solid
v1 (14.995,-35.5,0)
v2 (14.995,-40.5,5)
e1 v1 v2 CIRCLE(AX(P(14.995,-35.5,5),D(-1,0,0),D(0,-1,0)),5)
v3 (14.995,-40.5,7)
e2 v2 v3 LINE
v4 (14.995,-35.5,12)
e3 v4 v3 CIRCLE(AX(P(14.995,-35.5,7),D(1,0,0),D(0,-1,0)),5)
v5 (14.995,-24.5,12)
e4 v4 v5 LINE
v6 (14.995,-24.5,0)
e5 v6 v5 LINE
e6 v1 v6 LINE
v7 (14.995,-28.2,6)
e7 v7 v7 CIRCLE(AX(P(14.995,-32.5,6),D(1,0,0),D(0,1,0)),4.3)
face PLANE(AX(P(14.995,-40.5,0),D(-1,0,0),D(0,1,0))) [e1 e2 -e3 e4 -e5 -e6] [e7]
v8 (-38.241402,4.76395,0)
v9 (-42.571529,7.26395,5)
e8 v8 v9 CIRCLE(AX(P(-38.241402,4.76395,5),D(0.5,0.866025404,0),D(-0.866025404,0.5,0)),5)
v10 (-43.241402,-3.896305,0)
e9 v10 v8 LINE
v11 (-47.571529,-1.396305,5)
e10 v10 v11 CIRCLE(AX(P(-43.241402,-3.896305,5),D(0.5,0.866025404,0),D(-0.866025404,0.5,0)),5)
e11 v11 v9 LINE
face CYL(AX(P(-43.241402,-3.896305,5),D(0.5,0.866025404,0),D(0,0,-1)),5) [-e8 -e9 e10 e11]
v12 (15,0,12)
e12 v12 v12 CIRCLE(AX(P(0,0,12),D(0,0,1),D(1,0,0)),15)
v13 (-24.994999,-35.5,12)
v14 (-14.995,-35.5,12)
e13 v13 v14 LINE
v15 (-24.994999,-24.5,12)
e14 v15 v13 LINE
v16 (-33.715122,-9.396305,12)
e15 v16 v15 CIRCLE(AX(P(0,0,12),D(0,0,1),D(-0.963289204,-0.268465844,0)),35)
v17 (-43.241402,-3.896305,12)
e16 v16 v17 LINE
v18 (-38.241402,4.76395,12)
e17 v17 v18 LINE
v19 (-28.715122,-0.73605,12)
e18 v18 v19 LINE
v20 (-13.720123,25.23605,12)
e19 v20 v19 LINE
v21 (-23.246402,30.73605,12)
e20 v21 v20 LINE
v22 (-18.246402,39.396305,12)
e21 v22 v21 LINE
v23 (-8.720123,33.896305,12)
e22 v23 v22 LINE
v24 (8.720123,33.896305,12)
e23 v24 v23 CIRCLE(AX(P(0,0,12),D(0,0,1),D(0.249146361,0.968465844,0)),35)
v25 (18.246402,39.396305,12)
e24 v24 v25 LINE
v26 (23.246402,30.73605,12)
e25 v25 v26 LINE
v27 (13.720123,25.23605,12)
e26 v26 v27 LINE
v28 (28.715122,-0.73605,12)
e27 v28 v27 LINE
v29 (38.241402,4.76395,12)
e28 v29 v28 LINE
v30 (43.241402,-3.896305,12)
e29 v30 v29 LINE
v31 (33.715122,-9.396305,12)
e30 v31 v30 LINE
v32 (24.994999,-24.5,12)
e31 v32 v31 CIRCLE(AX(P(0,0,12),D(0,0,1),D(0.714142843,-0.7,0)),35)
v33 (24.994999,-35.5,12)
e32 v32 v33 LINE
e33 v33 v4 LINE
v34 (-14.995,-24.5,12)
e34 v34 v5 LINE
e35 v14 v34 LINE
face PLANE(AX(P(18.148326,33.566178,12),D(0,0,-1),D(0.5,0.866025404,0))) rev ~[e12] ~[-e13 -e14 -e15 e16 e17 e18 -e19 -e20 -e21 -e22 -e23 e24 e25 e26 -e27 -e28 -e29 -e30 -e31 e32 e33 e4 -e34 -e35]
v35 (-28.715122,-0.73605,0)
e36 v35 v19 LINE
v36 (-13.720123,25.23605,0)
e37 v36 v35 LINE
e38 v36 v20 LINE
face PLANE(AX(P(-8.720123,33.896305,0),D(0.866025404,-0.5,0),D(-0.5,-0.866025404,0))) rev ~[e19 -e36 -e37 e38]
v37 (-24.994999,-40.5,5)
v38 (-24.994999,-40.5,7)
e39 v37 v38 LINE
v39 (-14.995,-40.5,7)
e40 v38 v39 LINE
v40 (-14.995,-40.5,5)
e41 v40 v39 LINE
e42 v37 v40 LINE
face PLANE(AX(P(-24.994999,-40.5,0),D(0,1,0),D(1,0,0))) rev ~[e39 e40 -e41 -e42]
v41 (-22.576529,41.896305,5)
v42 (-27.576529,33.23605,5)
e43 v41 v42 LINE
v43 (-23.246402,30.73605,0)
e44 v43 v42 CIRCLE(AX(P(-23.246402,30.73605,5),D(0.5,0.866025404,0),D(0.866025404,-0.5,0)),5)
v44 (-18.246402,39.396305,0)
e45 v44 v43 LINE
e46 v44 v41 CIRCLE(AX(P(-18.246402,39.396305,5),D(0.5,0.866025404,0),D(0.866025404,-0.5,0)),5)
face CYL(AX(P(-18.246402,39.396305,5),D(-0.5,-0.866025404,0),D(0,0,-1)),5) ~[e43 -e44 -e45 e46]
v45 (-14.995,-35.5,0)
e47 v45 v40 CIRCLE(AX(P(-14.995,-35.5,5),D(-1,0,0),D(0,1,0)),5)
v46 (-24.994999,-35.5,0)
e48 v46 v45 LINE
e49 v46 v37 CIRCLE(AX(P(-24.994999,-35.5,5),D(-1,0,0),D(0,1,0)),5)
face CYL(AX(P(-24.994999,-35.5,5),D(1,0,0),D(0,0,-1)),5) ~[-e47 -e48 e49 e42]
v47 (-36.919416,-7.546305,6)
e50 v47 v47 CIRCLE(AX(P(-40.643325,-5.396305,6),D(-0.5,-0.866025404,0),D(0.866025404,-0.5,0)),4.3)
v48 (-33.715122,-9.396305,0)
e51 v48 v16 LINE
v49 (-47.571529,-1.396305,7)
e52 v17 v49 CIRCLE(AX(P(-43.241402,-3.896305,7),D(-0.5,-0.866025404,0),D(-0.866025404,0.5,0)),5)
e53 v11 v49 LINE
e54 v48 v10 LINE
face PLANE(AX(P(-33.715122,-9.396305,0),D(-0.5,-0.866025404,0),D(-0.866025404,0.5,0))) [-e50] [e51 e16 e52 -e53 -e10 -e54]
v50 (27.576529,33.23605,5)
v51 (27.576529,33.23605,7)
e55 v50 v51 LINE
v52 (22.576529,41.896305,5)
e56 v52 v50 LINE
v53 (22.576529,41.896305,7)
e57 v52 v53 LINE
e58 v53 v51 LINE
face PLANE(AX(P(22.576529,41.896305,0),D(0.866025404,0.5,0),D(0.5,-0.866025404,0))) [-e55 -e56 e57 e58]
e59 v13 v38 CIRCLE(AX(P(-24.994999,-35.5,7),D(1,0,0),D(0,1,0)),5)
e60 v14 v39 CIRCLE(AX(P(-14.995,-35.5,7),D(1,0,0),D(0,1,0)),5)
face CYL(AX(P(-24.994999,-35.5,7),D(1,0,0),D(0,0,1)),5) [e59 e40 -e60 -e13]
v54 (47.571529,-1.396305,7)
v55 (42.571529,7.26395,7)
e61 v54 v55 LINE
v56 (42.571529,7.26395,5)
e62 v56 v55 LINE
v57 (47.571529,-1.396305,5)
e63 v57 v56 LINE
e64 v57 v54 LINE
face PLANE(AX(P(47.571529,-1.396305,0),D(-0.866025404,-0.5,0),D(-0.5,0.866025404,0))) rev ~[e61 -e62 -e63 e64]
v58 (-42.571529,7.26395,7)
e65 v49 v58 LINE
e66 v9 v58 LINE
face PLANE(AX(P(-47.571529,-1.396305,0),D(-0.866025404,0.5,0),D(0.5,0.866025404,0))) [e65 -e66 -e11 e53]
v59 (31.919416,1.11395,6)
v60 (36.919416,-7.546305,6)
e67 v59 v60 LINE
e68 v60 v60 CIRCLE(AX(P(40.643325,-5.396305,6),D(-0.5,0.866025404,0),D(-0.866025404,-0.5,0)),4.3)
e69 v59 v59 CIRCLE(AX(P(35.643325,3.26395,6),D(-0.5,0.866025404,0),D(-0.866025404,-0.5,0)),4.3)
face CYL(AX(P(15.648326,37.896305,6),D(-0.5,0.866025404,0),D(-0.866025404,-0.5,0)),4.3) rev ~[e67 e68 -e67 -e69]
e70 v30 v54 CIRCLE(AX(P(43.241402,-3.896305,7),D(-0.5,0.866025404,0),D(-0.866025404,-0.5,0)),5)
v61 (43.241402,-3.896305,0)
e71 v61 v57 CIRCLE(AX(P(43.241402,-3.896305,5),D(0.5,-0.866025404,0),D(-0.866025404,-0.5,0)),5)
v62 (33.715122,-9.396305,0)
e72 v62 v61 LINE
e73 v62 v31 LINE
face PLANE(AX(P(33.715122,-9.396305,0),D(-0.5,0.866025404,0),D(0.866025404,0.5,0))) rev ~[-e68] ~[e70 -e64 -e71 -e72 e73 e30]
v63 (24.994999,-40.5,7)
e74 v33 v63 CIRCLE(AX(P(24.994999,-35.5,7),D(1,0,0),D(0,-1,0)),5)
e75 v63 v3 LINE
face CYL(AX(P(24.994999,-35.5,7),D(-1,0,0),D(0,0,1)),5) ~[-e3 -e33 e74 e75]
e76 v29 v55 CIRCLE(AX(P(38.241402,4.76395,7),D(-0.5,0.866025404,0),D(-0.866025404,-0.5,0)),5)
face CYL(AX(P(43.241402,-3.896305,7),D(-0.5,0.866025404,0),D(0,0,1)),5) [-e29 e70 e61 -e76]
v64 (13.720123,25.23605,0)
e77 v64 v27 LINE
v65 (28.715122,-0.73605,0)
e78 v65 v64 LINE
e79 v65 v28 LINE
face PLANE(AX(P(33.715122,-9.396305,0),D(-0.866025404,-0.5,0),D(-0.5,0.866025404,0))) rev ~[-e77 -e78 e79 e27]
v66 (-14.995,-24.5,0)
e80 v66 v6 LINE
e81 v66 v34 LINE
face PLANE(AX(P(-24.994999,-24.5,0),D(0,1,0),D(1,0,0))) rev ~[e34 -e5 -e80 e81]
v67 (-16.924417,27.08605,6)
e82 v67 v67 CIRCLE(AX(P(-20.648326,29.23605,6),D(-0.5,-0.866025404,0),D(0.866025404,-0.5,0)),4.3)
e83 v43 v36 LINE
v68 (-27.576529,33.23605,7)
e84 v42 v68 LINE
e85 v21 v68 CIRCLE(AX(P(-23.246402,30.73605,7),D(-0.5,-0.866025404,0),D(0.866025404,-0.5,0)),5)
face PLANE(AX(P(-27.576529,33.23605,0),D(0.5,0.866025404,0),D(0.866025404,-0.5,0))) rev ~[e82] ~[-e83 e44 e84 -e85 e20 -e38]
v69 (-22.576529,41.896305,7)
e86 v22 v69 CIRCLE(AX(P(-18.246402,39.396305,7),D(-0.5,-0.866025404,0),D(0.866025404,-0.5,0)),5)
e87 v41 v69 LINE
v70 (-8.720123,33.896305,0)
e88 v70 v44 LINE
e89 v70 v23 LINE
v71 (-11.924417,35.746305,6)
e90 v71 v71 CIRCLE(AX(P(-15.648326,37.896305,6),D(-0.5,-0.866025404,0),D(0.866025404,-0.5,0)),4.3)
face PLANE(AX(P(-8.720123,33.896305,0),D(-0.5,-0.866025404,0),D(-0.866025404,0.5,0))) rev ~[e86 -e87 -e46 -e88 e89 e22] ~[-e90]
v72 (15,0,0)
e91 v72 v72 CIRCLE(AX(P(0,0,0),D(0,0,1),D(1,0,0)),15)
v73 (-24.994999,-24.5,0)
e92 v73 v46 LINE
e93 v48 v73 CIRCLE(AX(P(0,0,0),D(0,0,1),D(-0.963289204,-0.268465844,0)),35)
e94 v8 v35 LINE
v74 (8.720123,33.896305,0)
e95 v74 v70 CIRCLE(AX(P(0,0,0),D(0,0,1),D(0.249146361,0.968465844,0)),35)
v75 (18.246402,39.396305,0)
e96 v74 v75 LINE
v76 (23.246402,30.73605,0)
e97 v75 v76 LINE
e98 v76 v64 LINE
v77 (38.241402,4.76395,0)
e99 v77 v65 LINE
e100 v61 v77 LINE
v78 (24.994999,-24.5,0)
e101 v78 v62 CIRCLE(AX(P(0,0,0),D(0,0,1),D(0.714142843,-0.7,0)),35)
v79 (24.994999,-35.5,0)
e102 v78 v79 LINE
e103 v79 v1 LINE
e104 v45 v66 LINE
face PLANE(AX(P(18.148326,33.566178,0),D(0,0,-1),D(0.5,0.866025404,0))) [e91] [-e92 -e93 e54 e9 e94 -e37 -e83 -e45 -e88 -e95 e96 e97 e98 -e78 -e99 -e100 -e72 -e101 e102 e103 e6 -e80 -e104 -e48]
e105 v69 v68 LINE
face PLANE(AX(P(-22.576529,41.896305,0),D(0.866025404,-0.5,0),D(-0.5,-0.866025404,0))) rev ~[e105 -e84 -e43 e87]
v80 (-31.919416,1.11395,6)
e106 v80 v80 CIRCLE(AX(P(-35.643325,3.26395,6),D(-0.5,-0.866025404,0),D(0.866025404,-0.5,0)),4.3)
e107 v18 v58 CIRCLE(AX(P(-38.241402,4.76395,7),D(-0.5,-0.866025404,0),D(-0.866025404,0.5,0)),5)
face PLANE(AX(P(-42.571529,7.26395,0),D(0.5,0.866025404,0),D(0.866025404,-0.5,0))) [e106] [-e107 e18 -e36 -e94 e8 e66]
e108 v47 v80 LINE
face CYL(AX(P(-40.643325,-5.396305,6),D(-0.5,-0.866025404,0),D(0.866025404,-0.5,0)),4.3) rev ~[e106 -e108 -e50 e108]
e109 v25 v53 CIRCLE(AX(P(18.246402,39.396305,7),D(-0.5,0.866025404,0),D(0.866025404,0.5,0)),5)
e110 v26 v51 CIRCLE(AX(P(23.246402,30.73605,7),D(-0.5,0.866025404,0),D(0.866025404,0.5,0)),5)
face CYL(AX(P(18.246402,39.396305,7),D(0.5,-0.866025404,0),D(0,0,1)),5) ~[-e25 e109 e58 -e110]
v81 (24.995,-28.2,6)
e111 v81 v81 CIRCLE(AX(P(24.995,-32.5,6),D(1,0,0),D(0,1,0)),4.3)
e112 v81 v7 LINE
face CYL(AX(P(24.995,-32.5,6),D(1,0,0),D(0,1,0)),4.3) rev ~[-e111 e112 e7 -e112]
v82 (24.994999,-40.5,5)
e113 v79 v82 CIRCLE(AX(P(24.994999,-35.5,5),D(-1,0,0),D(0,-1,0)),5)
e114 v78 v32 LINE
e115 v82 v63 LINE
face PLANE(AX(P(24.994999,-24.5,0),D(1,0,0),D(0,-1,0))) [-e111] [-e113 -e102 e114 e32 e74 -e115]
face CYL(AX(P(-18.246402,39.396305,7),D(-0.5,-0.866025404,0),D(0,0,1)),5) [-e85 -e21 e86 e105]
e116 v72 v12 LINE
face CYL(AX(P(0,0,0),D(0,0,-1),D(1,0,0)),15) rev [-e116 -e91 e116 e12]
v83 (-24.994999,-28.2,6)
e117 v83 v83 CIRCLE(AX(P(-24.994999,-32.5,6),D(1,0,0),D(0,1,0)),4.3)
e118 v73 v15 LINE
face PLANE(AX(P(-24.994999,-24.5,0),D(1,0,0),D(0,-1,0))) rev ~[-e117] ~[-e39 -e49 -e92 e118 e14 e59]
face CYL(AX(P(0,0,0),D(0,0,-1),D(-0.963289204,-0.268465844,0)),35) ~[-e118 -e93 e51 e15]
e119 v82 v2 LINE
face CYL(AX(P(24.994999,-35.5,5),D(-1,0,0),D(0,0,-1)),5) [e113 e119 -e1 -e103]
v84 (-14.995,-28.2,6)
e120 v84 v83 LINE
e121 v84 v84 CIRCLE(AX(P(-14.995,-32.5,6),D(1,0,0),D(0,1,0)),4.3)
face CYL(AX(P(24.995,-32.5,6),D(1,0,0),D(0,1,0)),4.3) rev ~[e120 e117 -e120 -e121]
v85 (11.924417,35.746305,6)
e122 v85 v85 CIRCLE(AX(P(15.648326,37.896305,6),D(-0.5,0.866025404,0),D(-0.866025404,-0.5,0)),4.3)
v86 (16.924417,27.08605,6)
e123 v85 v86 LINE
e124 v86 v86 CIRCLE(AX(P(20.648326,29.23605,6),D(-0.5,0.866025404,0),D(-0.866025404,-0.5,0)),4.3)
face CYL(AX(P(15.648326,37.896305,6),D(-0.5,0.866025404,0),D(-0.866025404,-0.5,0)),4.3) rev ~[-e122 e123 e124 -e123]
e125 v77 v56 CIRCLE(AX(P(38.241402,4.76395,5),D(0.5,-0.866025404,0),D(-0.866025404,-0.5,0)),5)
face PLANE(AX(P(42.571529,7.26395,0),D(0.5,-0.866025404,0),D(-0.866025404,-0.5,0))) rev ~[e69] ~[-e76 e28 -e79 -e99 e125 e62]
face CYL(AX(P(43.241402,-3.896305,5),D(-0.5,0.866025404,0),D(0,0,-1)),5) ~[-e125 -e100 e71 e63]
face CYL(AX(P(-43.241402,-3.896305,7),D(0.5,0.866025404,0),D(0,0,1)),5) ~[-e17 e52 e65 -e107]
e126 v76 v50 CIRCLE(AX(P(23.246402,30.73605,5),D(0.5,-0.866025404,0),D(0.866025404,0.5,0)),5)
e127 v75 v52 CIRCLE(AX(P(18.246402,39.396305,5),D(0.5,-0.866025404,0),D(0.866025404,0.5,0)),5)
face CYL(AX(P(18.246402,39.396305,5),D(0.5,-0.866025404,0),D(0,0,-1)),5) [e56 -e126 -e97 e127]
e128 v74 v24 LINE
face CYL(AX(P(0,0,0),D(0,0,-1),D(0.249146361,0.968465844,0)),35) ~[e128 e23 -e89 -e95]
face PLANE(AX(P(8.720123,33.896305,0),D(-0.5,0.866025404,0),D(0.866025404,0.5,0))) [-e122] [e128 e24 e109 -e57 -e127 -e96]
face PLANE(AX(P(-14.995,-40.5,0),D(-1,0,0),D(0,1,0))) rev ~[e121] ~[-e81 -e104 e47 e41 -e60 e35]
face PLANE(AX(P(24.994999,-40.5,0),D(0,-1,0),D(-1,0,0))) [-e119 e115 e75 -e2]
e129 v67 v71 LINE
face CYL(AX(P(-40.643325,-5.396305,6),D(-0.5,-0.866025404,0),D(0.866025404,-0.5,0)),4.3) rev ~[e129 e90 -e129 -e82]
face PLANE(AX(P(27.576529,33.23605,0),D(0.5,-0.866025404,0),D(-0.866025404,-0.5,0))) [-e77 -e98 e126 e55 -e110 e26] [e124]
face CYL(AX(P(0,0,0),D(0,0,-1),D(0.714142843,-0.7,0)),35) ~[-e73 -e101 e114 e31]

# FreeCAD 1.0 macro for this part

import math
import FreeCAD as App
import Part
import Sketcher

V = App.Vector
Q = App.Units.Quantity


def edges_at(feature, points):
    """Names of the edges that pass closest to the given points."""
    edges = feature.Shape.Edges
    near = lambda p: min(range(len(edges)), key=lambda i: edges[i].distToShape(Part.Vertex(*p))[0])
    return sorted({f"Edge{near(p) + 1}" for p in points})

doc = App.newDocument("Part")
params = doc.addObject("Spreadsheet::Sheet", "Params")
for row, (alias, value) in enumerate([
    ("sketch1_diameter", "30 mm"),
    ("sketch1_radius", "35 mm"),
    ("sketch1_width", "49.989999 mm"),
    ("sketch1_length", "49.989999 mm"),
    ("pad1_length", "12 mm"),
    ("sketch2_length", "16 mm"),
    ("sketch2_length2", "10 mm"),
    ("pad2_length", "12 mm"),
    ("sketch3_diameter", "8.6 mm"),
    ("fillet_radius", "5 mm"),
    ("fillet2_radius", "5 mm"),
], start=1):
    params.set(f"A{row}", alias)
    params.set(f"B{row}", "=" + value)
    params.setAlias(f"B{row}", alias)

body = doc.addObject("PartDesign::Body", "Body")

sketch1 = body.newObject("Sketcher::SketchObject", "Sketch")
sketch1.AttachmentSupport = (doc.getObject("XY_Plane"), [""])
sketch1.MapMode = "FlatFace"
sketch1.addGeometry([
    Part.LineSegment(V(-9, 34, 0), V(-34, -9, 0)),
    Part.ArcOfCircle(Part.Circle(V(0, 0, 0), V(0, 0, 1), 35), math.radians(-164), math.radians(-136)),
    Part.LineSegment(V(-25, -24, 0), V(25, -24, 0)),
    Part.ArcOfCircle(Part.Circle(V(0, 0, 0), V(0, 0, 1), 35), math.radians(-44), math.radians(-16)),
    Part.LineSegment(V(34, -9, 0), V(9, 34, 0)),
    Part.ArcOfCircle(Part.Circle(V(0, 0, 0), V(0, 0, 1), 35), math.radians(76), math.radians(104)),
    Part.Circle(V(0, 0, 0), V(0, 0, 1), 15),
], False)
sketch1.addConstraint([
    Sketcher.Constraint("Coincident", 0, 2, 1, 1),
    Sketcher.Constraint("Coincident", 1, 2, 2, 1),
    Sketcher.Constraint("Coincident", 2, 2, 3, 1),
    Sketcher.Constraint("Coincident", 3, 2, 4, 1),
    Sketcher.Constraint("Coincident", 4, 2, 5, 1),
    Sketcher.Constraint("Coincident", 5, 2, 0, 1),
    Sketcher.Constraint("Horizontal", 2),
    Sketcher.Constraint("Coincident", 1, 3, -1, 1),
    Sketcher.Constraint("Coincident", 3, 3, -1, 1),
    Sketcher.Constraint("Coincident", 5, 3, -1, 1),
    Sketcher.Constraint("Coincident", 6, 3, -1, 1),
    Sketcher.Constraint("Equal", 1, 3),
    Sketcher.Constraint("Equal", 3, 5),
    Sketcher.Constraint("Horizontal", 0, 2, 3, 2),
    Sketcher.Constraint("Horizontal", 4, 2, 5, 2),
    Sketcher.Constraint("Diameter", 6, Q("30 mm")),
    Sketcher.Constraint("Radius", 1, Q("35 mm")),
    Sketcher.Constraint("Angle", 0, Q("-120 deg")),
    Sketcher.Constraint("DistanceX", 2, 1, 2, 2, Q("49.989999 mm")),
    Sketcher.Constraint("Distance", 0, Q("49.989999 mm")),
])
sketch1.setExpression("Constraints[15]", "Params.sketch1_diameter")
sketch1.setExpression("Constraints[16]", "Params.sketch1_radius")
sketch1.setExpression("Constraints[18]", "Params.sketch1_width")
sketch1.setExpression("Constraints[19]", "Params.sketch1_length")
pad1 = body.newObject("PartDesign::Pad", "Pad")
pad1.Profile = sketch1
pad1.setExpression("Length", "Params.pad1_length")

sketch2 = body.newObject("Sketcher::SketchObject", "Sketch001")
sketch2.AttachmentSupport = (doc.getObject("XY_Plane"), [""])
sketch2.MapMode = "FlatFace"
sketch2.addGeometry([
    Part.LineSegment(V(-34, -9, 0), V(-48, -1, 0)),
    Part.LineSegment(V(-48, -1, 0), V(-43, 7, 0)),
    Part.LineSegment(V(-43, 7, 0), V(-29, -1, 0)),
    Part.LineSegment(V(-29, -1, 0), V(-34, -9, 0)),
    Part.LineSegment(V(-9, 34, 0), V(-14, 25, 0)),
    Part.LineSegment(V(-14, 25, 0), V(-28, 33, 0)),
    Part.LineSegment(V(-28, 33, 0), V(-23, 42, 0)),
    Part.LineSegment(V(-23, 42, 0), V(-9, 34, 0)),
], False)
sketch2.addConstraint([
    Sketcher.Constraint("Coincident", 0, 2, 1, 1),
    Sketcher.Constraint("Coincident", 1, 2, 2, 1),
    Sketcher.Constraint("Coincident", 2, 2, 3, 1),
    Sketcher.Constraint("Coincident", 3, 2, 0, 1),
    Sketcher.Constraint("Coincident", 4, 2, 5, 1),
    Sketcher.Constraint("Coincident", 5, 2, 6, 1),
    Sketcher.Constraint("Coincident", 6, 2, 7, 1),
    Sketcher.Constraint("Coincident", 7, 2, 4, 1),
    Sketcher.Constraint("Perpendicular", 0, 1),
    Sketcher.Constraint("Perpendicular", 1, 2),
    Sketcher.Constraint("Perpendicular", 2, 3),
    Sketcher.Constraint("Parallel", 3, 4),
    Sketcher.Constraint("Perpendicular", 4, 5),
    Sketcher.Constraint("Perpendicular", 5, 6),
    Sketcher.Constraint("Perpendicular", 6, 7),
    Sketcher.Constraint("Equal", 3, 4),
    Sketcher.Constraint("Equal", 2, 5),
    Sketcher.Constraint("Angle", 0, Q("150 deg")),
    Sketcher.Constraint("Distance", 0, Q("16 mm")),
    Sketcher.Constraint("Distance", 1, Q("10 mm")),
    Sketcher.Constraint("DistanceX", 2, 2, 4, 2, Q("14.994999 mm")),
    Sketcher.Constraint("DistanceY", 2, 2, 4, 2, Q("25.972101 mm")),
    Sketcher.Constraint("DistanceX", 0, 2, -1, 1, Q("47.571529 mm")),
    Sketcher.Constraint("DistanceY", -1, 1, 1, 2, Q("7.26395 mm")),
])
sketch2.setExpression("Constraints[18]", "Params.sketch2_length")
sketch2.setExpression("Constraints[19]", "Params.sketch2_length2")
pad2 = body.newObject("PartDesign::Pad", "Pad001")
pad2.Profile = sketch2
pad2.setExpression("Length", "Params.pad2_length")

sketch3 = body.newObject("Sketcher::SketchObject", "Sketch002")
sketch3.Placement = App.Placement(V(-12.4975, -21.646305, 0), App.Rotation(V(0.866025404, -0.5, 0), V(0, 0, 1), V(-0.5, -0.866025404, 0), "ZXY"))
sketch3.addGeometry(Part.Circle(V(-32.5, 6, 0), V(0, 0, 1), 4.3), False)
sketch3.addConstraint([
    Sketcher.Constraint("Diameter", 0, Q("8.6 mm")),
    Sketcher.Constraint("DistanceY", -1, 1, 0, 3, Q("6 mm")),
    Sketcher.Constraint("DistanceX", 0, 3, -1, 1, Q("32.5 mm")),
])
sketch3.setExpression("Constraints[0]", "Params.sketch3_diameter")
pocket1 = body.newObject("PartDesign::Pocket", "Pocket")
pocket1.Profile = sketch3
pocket1.Type = "ThroughAll"
doc.recompute()

fillet = body.newObject("PartDesign::Fillet", "Fillet")
fillet.Base = (pocket1, edges_at(pocket1, [
    (-45.072, 2.934, 12),
    (-45.072, 2.934, 0),
    (-25.077, 37.566, 12),
    (-25.077, 37.566, 0),
]))
fillet.setExpression("Radius", "Params.fillet_radius")
doc.recompute()

polarpattern = body.newObject("PartDesign::PolarPattern", "PolarPattern")
polarpattern.Originals = [pad2, pocket1]
polarpattern.Axis = (doc.getObject("Z_Axis"), [""])
polarpattern.Angle = 360
polarpattern.Occurrences = 3
body.Tip = polarpattern
doc.recompute()

fillet2 = body.newObject("PartDesign::Fillet", "Fillet001")
fillet2.Base = (polarpattern, edges_at(polarpattern, [
    (19.995, -40.5, 12),
    (19.995, -40.5, 0),
    (-19.995, -40.5, 12),
    (-19.995, -40.5, 0),
    (25.077, 37.566, 12),
    (25.077, 37.566, 0),
    (45.072, 2.934, 12),
    (45.072, 2.934, 0),
]))
fillet2.setExpression("Radius", "Params.fillet2_radius")

doc.recompute()
